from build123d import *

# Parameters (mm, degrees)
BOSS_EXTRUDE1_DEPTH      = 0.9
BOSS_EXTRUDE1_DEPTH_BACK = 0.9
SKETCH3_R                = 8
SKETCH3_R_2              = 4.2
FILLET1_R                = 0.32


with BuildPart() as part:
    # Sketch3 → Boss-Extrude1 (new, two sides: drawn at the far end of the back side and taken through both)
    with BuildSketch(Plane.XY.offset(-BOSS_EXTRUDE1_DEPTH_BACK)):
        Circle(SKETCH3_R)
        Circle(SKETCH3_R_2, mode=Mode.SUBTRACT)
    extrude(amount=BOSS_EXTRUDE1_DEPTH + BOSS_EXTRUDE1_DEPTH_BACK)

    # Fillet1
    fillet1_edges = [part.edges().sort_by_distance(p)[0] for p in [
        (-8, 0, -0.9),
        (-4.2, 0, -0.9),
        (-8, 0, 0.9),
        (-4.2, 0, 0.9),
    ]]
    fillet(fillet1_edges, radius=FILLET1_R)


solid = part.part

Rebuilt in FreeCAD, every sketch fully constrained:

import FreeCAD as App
import Part
import Sketcher


def edges_at(feature, points):
    """Names of the edges that pass closest to the given points."""
    edges = feature.Shape.Edges
    near = lambda p: min(range(len(edges)), key=lambda i: edges[i].distToShape(Part.Vertex(*p))[0])
    return sorted({f"Edge{near(p) + 1}" for p in points})

doc = App.newDocument("Part")
body = doc.addObject("PartDesign::Body", "Body")

# Sketch on XY plane
sketch1 = doc.addObject("Sketcher::SketchObject", "Sketch")
body.addObject(sketch1)
sketch1.AttachmentSupport = (doc.XY_Plane, [""])
sketch1.MapMode = "FlatFace"
sketch1.addGeometry(Part.Circle(App.Vector(0, 0, 0), App.Vector(0, 0, 1), 8), False)
sketch1.addGeometry(Part.Circle(App.Vector(0, 0, 0), App.Vector(0, 0, 1), 4.2), False)
sketch1.addConstraint(Sketcher.Constraint("Coincident", 0, 3, -1, 1))
sketch1.addConstraint(Sketcher.Constraint("Coincident", 1, 3, -1, 1))
sketch1.addConstraint(Sketcher.Constraint("Diameter", 0, 16.0))
sketch1.addConstraint(Sketcher.Constraint("Diameter", 1, 8.4))
pad1 = doc.addObject("PartDesign::Pad", "Pad")
body.addObject(pad1)
pad1.Profile = sketch1
pad1.Type = "TwoLengths"
pad1.Length = 0.9
pad1.Length2 = 0.9
doc.recompute()

fillet = doc.addObject("PartDesign::Fillet", "Fillet")
body.addObject(fillet)
fillet.Base = (pad1, edges_at(pad1, [
    (-8, 0, -0.9),
    (-4.2, 0, -0.9),
    (-8, 0, 0.9),
    (-4.2, 0, 0.9),
]))
fillet.Radius = 0.32

doc.recompute()
